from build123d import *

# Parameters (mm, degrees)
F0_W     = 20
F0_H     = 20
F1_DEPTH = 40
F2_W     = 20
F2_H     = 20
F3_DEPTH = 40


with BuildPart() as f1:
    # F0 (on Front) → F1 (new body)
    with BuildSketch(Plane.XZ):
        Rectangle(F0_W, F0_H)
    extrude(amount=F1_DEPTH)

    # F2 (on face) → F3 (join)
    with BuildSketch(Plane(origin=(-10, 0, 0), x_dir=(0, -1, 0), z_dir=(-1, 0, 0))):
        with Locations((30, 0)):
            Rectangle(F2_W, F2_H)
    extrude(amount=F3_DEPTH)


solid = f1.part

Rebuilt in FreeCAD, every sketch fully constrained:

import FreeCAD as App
import Part
import Sketcher
from FreeCAD import Vector
Q = App.Units.Quantity

doc = App.newDocument("Part")
body = doc.addObject("PartDesign::Body", "Body")

# Sketch on XZ plane
sketch1 = body.newObject("Sketcher::SketchObject", "Sketch")
sketch1.AttachmentSupport = (doc.getObject("XZ_Plane"), [""])
sketch1.MapMode = "FlatFace"
sketch1.addGeometry([
    Part.LineSegment(Vector(-10, 10, 0), Vector(-10, -10, 0)),
    Part.LineSegment(Vector(-10, -10, 0), Vector(10, -10, 0)),
    Part.LineSegment(Vector(10, -10, 0), Vector(10, 10, 0)),
    Part.LineSegment(Vector(10, 10, 0), Vector(-10, 10, 0)),
], False)
sketch1.addConstraint([
    Sketcher.Constraint("Coincident", 0, 2, 1, 1),
    Sketcher.Constraint("Coincident", 1, 2, 2, 1),
    Sketcher.Constraint("Coincident", 2, 2, 3, 1),
    Sketcher.Constraint("Coincident", 3, 2, 0, 1),
    Sketcher.Constraint("Vertical", 0),
    Sketcher.Constraint("Horizontal", 1),
    Sketcher.Constraint("Vertical", 2),
    Sketcher.Constraint("Horizontal", 3),
    Sketcher.Constraint("Symmetric", 0, 2, 2, 2, -1, 1),
    Sketcher.Constraint("Equal", 3, 0),
    Sketcher.Constraint("DistanceX", 1, 1, 1, 2, Q("20 mm")),
])
pad1 = body.newObject("PartDesign::Pad", "Pad")
pad1.Profile = sketch1
pad1.Length = 40

# Sketch on YZ plane
sketch2 = body.newObject("Sketcher::SketchObject", "Sketch001")
sketch2.AttachmentSupport = (doc.getObject("YZ_Plane"), [""])
sketch2.MapMode = "FlatFace"
sketch2.AttachmentOffset = App.Placement(Vector(0, 0, -10), App.Rotation())
sketch2.addGeometry([
    Part.LineSegment(Vector(-20, 10, 0), Vector(-20, -10, 0)),
    Part.LineSegment(Vector(-20, -10, 0), Vector(-40, -10, 0)),
    Part.LineSegment(Vector(-40, -10, 0), Vector(-40, 10, 0)),
    Part.LineSegment(Vector(-40, 10, 0), Vector(-20, 10, 0)),
], False)
sketch2.addConstraint([
    Sketcher.Constraint("Coincident", 0, 2, 1, 1),
    Sketcher.Constraint("Coincident", 1, 2, 2, 1),
    Sketcher.Constraint("Coincident", 2, 2, 3, 1),
    Sketcher.Constraint("Coincident", 3, 2, 0, 1),
    Sketcher.Constraint("Vertical", 0),
    Sketcher.Constraint("Horizontal", 1),
    Sketcher.Constraint("Vertical", 2),
    Sketcher.Constraint("Horizontal", 3),
    Sketcher.Constraint("Equal", 3, 0),
    Sketcher.Constraint("DistanceX", 1, 2, 1, 1, Q("20 mm")),
    Sketcher.Constraint("DistanceX", 0, 2, -1, 1, Q("20 mm")),
    Sketcher.Constraint("DistanceY", 0, 2, -1, 1, Q("10 mm")),
])
pad2 = body.newObject("PartDesign::Pad", "Pad001")
pad2.Profile = sketch2
pad2.Length = 40
pad2.Reversed = True

doc.recompute()
